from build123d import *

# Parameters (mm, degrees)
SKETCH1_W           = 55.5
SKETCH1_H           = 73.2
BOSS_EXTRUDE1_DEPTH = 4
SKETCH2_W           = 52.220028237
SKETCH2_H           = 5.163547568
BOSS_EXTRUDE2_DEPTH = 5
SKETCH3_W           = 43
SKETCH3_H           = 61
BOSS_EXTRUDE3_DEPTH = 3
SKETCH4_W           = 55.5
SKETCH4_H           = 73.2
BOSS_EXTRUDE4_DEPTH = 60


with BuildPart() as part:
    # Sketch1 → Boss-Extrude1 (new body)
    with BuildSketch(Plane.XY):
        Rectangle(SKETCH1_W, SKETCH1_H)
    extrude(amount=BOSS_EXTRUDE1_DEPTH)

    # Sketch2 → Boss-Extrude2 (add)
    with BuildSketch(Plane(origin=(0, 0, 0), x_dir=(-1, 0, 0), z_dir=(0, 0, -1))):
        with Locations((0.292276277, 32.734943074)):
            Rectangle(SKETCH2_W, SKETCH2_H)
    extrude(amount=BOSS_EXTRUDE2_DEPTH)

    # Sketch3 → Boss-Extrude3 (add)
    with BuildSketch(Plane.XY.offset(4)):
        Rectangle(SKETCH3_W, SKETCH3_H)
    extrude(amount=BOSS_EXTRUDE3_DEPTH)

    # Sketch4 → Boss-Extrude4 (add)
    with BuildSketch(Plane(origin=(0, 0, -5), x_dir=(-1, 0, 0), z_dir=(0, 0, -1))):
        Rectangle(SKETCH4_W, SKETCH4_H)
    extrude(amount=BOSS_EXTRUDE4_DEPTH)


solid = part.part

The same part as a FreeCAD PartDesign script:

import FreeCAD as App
import Part
import Sketcher
from FreeCAD import Vector
Q = App.Units.Quantity


def add_polygon(sketch, points):
    """Adds a closed chain of lines whose ends are joined by coincident constraints."""
    first, n = sketch.GeometryCount, len(points)
    for a, b in zip(points, points[1:] + points[:1]):
        sketch.addGeometry(Part.LineSegment(App.Vector(*a, 0), App.Vector(*b, 0)), False)
    for i in range(n):
        sketch.addConstraint(Sketcher.Constraint("Coincident", first + i, 2, first + (i + 1) % n, 1))

doc = App.newDocument("Part")
params = doc.addObject("Spreadsheet::Sheet", "Params")
for row, (alias, value) in enumerate([
    ("sketch1_width", "55.5 mm"),
    ("sketch1_height", "73.2 mm"),
    ("pad1_length", "4 mm"),
    ("pad2_length", "5 mm"),
    ("sketch3_width", "43 mm"),
    ("sketch3_height", "61 mm"),
    ("pad3_length", "3 mm"),
    ("sketch4_width", "55.5 mm"),
    ("sketch4_height", "73.2 mm"),
    ("pad4_length", "60 mm"),
], start=1):
    params.set(f"A{row}", alias)
    params.set(f"B{row}", "=" + value)
    params.setAlias(f"B{row}", alias)

body = doc.addObject("PartDesign::Body", "Body")

# Sketch on XY plane
sketch1 = body.newObject("Sketcher::SketchObject", "Sketch")
sketch1.AttachmentSupport = (doc.getObject("XY_Plane"), [""])
sketch1.MapMode = "FlatFace"
add_polygon(sketch1, [(-28, 37), (-28, -37), (28, -37), (28, 37)])  # lines 0-3
sketch1.addConstraint(Sketcher.Constraint("Vertical", 0))
sketch1.addConstraint(Sketcher.Constraint("Horizontal", 1))
sketch1.addConstraint(Sketcher.Constraint("Vertical", 2))
sketch1.addConstraint(Sketcher.Constraint("Horizontal", 3))
sketch1.addConstraint(Sketcher.Constraint("Symmetric", 0, 2, 2, 2, -1, 1))
sketch1.addConstraint(Sketcher.Constraint("DistanceX", 1, 1, 1, 2, Q("55.5 mm")))
sketch1.addConstraint(Sketcher.Constraint("DistanceY", 0, 2, 0, 1, Q("73.2 mm")))
sketch1.setExpression("Constraints[9]", "Params.sketch1_width")
sketch1.setExpression("Constraints[10]", "Params.sketch1_height")
pad1 = body.newObject("PartDesign::Pad", "Pad")
pad1.Profile = sketch1
pad1.setExpression("Length", "Params.pad1_length")

# Sketch on XY plane
sketch2 = body.newObject("Sketcher::SketchObject", "Sketch001")
sketch2.AttachmentSupport = (doc.getObject("XY_Plane"), [""])
sketch2.MapMode = "FlatFace"
add_polygon(sketch2, [(26, 35), (26, 30), (-26, 30), (-26, 35)])  # lines 0-3
sketch2.addConstraint(Sketcher.Constraint("Vertical", 0))
sketch2.addConstraint(Sketcher.Constraint("Horizontal", 1))
sketch2.addConstraint(Sketcher.Constraint("Vertical", 2))
sketch2.addConstraint(Sketcher.Constraint("Horizontal", 3))
sketch2.addConstraint(Sketcher.Constraint("DistanceX", 1, 2, 1, 1, Q("52.220028 mm")))
sketch2.addConstraint(Sketcher.Constraint("DistanceY", 0, 2, 0, 1, Q("5.163548 mm")))
sketch2.addConstraint(Sketcher.Constraint("DistanceY", -1, 1, 0, 2, Q("30.153169 mm")))
sketch2.addConstraint(Sketcher.Constraint("DistanceX", 1, 2, -1, 1, Q("26.40229 mm")))
pad2 = body.newObject("PartDesign::Pad", "Pad001")
pad2.Profile = sketch2
pad2.setExpression("Length", "Params.pad2_length")
pad2.Reversed = True

# Sketch on XY plane
sketch3 = body.newObject("Sketcher::SketchObject", "Sketch002")
sketch3.AttachmentSupport = (doc.getObject("XY_Plane"), [""])
sketch3.MapMode = "FlatFace"
sketch3.AttachmentOffset = App.Placement(Vector(0, 0, 4), App.Rotation())
add_polygon(sketch3, [(-22, 30), (-22, -30), (22, -30), (22, 30)])  # lines 0-3
sketch3.addConstraint(Sketcher.Constraint("Vertical", 0))
sketch3.addConstraint(Sketcher.Constraint("Horizontal", 1))
sketch3.addConstraint(Sketcher.Constraint("Vertical", 2))
sketch3.addConstraint(Sketcher.Constraint("Horizontal", 3))
sketch3.addConstraint(Sketcher.Constraint("Symmetric", 0, 2, 2, 2, -1, 1))
sketch3.addConstraint(Sketcher.Constraint("DistanceX", 1, 1, 1, 2, Q("43 mm")))
sketch3.addConstraint(Sketcher.Constraint("DistanceY", 0, 2, 0, 1, Q("61 mm")))
sketch3.setExpression("Constraints[9]", "Params.sketch3_width")
sketch3.setExpression("Constraints[10]", "Params.sketch3_height")
pad3 = body.newObject("PartDesign::Pad", "Pad002")
pad3.Profile = sketch3
pad3.setExpression("Length", "Params.pad3_length")

# Sketch on XY plane
sketch4 = body.newObject("Sketcher::SketchObject", "Sketch003")
sketch4.AttachmentSupport = (doc.getObject("XY_Plane"), [""])
sketch4.MapMode = "FlatFace"
sketch4.AttachmentOffset = App.Placement(Vector(0, 0, -5), App.Rotation())
add_polygon(sketch4, [(28, 37), (28, -37), (-28, -37), (-28, 37)])  # lines 0-3
sketch4.addConstraint(Sketcher.Constraint("Vertical", 0))
sketch4.addConstraint(Sketcher.Constraint("Horizontal", 1))
sketch4.addConstraint(Sketcher.Constraint("Vertical", 2))
sketch4.addConstraint(Sketcher.Constraint("Horizontal", 3))
sketch4.addConstraint(Sketcher.Constraint("Symmetric", 0, 2, 2, 2, -1, 1))
sketch4.addConstraint(Sketcher.Constraint("DistanceX", 1, 2, 1, 1, Q("55.5 mm")))
sketch4.addConstraint(Sketcher.Constraint("DistanceY", 0, 2, 0, 1, Q("73.2 mm")))
sketch4.setExpression("Constraints[9]", "Params.sketch4_width")
sketch4.setExpression("Constraints[10]", "Params.sketch4_height")
pad4 = body.newObject("PartDesign::Pad", "Pad003")
pad4.Profile = sketch4
pad4.setExpression("Length", "Params.pad4_length")
pad4.Reversed = True

doc.recompute()
